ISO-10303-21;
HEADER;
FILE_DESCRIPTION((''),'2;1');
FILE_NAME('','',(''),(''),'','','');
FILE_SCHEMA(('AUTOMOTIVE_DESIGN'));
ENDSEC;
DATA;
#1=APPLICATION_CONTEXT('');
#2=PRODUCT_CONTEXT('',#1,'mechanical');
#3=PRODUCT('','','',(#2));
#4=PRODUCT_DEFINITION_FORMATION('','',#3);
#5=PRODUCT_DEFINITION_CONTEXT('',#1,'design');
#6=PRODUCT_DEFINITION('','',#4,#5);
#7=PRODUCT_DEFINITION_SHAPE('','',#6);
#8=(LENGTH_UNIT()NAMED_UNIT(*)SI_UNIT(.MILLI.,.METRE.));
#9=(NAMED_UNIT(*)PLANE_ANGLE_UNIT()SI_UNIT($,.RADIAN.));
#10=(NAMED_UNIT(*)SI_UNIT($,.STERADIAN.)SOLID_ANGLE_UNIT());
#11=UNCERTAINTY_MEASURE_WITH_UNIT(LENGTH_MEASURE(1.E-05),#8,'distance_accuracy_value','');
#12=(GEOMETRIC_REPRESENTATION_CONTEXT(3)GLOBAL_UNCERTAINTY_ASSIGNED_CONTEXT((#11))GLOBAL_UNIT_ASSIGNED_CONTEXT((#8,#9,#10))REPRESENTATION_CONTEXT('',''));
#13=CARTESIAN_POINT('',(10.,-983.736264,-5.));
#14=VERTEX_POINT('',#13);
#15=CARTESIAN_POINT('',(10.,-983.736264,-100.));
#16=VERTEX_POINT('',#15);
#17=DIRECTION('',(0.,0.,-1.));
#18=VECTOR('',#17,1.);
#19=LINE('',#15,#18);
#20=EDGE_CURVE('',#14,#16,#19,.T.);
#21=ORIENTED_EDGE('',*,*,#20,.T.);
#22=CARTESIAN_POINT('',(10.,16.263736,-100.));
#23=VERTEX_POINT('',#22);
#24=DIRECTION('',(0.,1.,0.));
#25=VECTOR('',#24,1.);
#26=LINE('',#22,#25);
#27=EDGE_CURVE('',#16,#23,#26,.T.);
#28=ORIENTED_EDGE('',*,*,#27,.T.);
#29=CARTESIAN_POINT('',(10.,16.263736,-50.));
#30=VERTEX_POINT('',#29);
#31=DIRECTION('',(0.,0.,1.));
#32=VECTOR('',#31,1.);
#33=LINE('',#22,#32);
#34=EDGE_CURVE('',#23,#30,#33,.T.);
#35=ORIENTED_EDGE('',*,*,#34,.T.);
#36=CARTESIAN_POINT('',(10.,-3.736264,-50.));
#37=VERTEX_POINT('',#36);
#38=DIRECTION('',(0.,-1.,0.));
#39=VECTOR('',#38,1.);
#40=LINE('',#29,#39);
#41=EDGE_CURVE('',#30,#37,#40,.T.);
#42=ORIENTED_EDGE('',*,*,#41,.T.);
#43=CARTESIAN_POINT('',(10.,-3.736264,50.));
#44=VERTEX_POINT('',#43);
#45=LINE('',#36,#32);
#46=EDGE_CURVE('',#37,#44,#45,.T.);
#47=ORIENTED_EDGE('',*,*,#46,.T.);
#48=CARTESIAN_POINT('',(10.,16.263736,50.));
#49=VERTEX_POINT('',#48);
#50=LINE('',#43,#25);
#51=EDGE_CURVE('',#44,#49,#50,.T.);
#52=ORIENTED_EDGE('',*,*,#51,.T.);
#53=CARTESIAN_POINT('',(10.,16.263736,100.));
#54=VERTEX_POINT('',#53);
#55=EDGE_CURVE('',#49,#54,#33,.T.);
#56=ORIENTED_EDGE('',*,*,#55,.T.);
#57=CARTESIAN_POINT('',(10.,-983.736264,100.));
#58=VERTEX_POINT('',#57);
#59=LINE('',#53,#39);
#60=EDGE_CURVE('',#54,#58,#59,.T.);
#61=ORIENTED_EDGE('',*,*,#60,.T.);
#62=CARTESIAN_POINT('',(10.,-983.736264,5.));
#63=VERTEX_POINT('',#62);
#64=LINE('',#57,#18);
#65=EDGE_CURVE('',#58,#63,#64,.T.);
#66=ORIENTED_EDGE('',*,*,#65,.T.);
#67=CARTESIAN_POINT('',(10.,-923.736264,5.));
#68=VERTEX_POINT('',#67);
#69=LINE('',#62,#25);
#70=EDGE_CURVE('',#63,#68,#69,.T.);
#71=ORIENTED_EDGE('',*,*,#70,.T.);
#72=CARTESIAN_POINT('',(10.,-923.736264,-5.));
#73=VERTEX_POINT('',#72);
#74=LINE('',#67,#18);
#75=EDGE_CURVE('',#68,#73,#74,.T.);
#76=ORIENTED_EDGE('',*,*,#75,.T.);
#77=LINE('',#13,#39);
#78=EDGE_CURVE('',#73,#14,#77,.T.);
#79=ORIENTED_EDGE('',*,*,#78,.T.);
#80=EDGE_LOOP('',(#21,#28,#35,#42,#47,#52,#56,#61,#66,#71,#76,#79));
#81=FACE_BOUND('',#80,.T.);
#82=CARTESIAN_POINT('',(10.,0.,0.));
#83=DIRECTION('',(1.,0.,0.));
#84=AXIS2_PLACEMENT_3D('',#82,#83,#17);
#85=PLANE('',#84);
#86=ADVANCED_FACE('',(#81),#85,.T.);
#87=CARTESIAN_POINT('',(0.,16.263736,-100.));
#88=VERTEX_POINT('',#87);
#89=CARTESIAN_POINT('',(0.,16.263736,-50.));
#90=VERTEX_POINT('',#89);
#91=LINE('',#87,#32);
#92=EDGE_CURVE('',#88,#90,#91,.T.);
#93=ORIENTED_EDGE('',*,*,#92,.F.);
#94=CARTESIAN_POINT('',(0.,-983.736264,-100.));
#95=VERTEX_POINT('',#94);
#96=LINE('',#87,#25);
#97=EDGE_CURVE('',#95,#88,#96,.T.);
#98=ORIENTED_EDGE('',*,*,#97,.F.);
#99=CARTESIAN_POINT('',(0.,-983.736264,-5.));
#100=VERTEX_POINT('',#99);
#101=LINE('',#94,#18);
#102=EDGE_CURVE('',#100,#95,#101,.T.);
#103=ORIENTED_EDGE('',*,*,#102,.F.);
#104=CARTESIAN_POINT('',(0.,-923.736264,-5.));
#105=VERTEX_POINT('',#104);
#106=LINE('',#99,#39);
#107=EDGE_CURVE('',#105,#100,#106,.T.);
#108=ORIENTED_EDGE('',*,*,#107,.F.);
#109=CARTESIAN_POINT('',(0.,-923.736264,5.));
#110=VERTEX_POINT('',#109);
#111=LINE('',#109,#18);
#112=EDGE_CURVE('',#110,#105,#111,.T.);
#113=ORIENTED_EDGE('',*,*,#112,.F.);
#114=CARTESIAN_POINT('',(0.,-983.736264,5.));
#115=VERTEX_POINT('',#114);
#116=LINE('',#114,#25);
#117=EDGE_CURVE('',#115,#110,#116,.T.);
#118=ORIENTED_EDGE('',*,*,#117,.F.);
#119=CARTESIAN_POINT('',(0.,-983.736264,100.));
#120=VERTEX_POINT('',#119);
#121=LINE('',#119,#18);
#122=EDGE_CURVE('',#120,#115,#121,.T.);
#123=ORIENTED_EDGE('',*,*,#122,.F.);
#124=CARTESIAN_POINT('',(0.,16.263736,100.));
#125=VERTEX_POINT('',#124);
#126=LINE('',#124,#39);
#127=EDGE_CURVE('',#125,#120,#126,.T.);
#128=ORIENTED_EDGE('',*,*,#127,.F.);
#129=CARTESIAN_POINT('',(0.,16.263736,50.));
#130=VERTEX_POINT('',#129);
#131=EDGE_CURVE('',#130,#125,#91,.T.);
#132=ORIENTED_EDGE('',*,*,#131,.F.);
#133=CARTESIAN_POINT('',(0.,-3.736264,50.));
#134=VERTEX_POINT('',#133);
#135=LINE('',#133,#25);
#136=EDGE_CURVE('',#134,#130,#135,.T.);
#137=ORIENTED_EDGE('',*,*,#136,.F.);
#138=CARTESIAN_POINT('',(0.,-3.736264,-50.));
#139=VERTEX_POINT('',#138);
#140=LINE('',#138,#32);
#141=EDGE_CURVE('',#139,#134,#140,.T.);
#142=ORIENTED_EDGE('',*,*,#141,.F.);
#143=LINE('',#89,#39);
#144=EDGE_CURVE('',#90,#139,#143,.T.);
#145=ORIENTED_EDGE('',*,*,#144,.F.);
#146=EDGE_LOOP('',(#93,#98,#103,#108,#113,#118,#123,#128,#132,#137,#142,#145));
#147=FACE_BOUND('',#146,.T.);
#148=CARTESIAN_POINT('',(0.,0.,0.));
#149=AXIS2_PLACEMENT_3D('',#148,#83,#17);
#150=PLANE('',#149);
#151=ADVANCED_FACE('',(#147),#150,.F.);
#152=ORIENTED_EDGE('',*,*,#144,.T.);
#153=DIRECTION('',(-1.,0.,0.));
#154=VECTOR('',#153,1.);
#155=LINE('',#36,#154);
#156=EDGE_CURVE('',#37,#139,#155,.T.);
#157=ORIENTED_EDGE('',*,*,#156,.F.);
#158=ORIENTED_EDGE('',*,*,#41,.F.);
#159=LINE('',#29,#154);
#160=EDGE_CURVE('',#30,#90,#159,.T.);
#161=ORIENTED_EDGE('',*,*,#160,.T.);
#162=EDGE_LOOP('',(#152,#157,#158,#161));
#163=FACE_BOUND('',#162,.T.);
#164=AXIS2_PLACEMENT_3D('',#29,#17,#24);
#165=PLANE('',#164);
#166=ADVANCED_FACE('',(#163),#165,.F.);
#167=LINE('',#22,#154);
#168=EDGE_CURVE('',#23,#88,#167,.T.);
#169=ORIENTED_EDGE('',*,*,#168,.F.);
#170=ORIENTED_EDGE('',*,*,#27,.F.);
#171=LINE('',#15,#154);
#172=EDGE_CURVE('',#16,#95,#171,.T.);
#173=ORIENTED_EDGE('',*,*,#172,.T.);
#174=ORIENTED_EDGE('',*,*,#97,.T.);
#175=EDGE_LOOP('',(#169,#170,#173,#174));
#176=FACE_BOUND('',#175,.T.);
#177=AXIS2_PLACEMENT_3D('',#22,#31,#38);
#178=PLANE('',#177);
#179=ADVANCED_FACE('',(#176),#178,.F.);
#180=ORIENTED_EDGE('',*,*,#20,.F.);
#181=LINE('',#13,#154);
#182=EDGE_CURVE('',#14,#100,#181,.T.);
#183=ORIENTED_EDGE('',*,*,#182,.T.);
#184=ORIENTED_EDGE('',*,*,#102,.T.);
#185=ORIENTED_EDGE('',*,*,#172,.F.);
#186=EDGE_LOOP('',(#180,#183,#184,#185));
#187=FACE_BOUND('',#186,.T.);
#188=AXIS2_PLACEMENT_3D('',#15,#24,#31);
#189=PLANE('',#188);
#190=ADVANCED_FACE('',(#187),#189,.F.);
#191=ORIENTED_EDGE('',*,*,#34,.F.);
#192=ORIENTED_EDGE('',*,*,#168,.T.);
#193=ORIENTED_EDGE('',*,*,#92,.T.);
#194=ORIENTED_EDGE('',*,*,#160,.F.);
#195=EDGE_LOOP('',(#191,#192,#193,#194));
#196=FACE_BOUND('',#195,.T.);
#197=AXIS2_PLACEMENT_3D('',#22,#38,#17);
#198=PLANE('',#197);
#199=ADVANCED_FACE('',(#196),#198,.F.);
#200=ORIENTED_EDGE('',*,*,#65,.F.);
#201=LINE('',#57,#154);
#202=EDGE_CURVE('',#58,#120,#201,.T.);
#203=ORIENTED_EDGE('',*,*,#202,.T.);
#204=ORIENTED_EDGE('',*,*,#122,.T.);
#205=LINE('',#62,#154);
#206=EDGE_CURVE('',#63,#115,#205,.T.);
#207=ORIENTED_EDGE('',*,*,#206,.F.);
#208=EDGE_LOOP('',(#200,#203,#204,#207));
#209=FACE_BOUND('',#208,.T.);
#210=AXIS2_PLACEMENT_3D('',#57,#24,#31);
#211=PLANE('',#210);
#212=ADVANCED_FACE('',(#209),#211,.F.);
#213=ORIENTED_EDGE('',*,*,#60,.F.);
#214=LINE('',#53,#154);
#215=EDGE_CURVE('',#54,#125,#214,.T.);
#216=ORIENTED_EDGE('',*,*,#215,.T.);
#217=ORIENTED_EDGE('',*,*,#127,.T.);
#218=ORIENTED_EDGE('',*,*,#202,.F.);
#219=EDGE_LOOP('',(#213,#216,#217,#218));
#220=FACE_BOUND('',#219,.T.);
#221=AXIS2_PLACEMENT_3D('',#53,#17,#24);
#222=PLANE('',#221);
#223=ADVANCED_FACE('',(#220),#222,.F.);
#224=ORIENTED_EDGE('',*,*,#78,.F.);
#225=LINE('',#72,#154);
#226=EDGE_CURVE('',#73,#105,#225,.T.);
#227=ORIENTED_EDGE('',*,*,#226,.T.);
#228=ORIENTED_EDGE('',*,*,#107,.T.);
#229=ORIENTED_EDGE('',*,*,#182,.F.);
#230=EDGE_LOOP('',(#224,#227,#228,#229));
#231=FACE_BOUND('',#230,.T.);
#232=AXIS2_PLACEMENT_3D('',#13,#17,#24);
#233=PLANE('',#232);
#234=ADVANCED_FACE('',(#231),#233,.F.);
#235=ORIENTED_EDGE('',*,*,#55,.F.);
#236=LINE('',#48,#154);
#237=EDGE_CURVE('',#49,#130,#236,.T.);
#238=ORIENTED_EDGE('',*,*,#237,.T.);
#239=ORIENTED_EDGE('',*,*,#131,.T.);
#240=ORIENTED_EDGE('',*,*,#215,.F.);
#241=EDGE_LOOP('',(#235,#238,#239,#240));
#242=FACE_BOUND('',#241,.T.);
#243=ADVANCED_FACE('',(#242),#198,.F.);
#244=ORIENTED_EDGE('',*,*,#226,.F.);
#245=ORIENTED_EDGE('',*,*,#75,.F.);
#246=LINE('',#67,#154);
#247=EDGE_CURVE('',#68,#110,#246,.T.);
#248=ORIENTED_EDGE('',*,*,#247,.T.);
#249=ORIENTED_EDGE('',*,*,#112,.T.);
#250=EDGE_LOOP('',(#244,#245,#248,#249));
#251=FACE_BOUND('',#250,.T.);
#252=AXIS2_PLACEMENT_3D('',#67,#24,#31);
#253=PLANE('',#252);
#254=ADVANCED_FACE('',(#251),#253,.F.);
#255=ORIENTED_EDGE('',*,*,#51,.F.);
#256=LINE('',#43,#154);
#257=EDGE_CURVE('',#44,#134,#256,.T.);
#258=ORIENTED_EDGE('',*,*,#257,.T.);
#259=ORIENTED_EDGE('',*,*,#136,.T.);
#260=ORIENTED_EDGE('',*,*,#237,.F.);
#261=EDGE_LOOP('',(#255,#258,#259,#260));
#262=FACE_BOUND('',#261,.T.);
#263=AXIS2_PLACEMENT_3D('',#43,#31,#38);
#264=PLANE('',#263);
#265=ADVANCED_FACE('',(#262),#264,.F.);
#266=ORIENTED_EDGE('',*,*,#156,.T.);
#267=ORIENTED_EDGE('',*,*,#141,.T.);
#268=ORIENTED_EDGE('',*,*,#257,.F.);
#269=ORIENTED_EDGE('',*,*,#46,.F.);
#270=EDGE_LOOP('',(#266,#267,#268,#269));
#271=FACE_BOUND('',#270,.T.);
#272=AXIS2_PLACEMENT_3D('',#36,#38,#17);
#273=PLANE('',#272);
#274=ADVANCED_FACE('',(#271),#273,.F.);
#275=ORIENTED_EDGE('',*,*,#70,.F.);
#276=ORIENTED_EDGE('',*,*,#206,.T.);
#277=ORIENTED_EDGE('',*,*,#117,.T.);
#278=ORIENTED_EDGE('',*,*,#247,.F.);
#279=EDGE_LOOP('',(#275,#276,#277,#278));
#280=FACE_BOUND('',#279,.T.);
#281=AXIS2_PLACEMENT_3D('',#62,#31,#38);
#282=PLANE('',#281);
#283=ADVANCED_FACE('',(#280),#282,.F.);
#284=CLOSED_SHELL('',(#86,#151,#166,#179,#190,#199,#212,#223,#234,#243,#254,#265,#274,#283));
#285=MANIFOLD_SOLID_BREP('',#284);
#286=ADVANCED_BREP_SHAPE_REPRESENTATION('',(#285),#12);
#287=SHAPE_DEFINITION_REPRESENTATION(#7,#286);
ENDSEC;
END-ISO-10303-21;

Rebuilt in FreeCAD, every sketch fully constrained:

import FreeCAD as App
import Part
import Sketcher
from FreeCAD import Vector


def add_polygon(sketch, points):
    """Adds a closed chain of lines whose ends are joined by coincident constraints."""
    first, n = sketch.GeometryCount, len(points)
    for a, b in zip(points, points[1:] + points[:1]):
        sketch.addGeometry(Part.LineSegment(App.Vector(*a, 0), App.Vector(*b, 0)), False)
    for i in range(n):
        sketch.addConstraint(Sketcher.Constraint("Coincident", first + i, 2, first + (i + 1) % n, 1))

doc = App.newDocument("Part")
body = doc.addObject("PartDesign::Body", "Body")

# Sketch on YZ plane
sketch1 = body.newObject("Sketcher::SketchObject", "Sketch")
sketch1.AttachmentSupport = (doc.getObject("YZ_Plane"), [""])
sketch1.MapMode = "FlatFace"
add_polygon(sketch1, [(16, -100), (16, 100), (-984, 100), (-984, 5), (-924, 5), (-924, -5), (-984, -5), (-984, -100)])  # lines 0-7
sketch1.addConstraint([
    Sketcher.Constraint("Vertical", 0),
    Sketcher.Constraint("Horizontal", 1),
    Sketcher.Constraint("Vertical", 2),
    Sketcher.Constraint("Horizontal", 3),
    Sketcher.Constraint("Vertical", 4),
    Sketcher.Constraint("Horizontal", 5),
    Sketcher.Constraint("Vertical", 6),
    Sketcher.Constraint("Horizontal", 7),
    Sketcher.Constraint("Symmetric", 2, 2, 5, 2, -1),
    Sketcher.Constraint("Equal", 2, 6),
    Sketcher.Constraint("DistanceX", 1, 2, 1, 1, 1000.0),
    Sketcher.Constraint("DistanceX", 3, 1, 3, 2, 60.0),
    Sketcher.Constraint("DistanceY", 0, 1, 0, 2, 200.0),
    Sketcher.Constraint("DistanceY", 2, 2, 2, 1, 95.0),
    Sketcher.Constraint("DistanceX", -1, 1, 0, 2, 16.263736),
])
pad1 = body.newObject("PartDesign::Pad", "Pad")
pad1.Profile = sketch1
pad1.Length = 10

# Sketch on YZ plane
sketch2 = body.newObject("Sketcher::SketchObject", "Sketch001")
sketch2.AttachmentSupport = (doc.getObject("YZ_Plane"), [""])
sketch2.MapMode = "FlatFace"
add_polygon(sketch2, [(16, -50), (-4, -50), (-4, 50), (16, 50)])  # lines 0-3
sketch2.addConstraint([
    Sketcher.Constraint("Horizontal", 0),
    Sketcher.Constraint("Vertical", 1),
    Sketcher.Constraint("Horizontal", 2),
    Sketcher.Constraint("Vertical", 3),
    Sketcher.Constraint("DistanceX", 0, 2, 0, 1, 20.0),
    Sketcher.Constraint("DistanceY", 1, 1, 1, 2, 100.0),
    Sketcher.Constraint("DistanceY", 0, 2, -1, 1, 50.0),
    Sketcher.Constraint("DistanceX", 0, 2, -1, 1, 3.736264),
])
pocket1 = body.newObject("PartDesign::Pocket", "Pocket")
pocket1.Profile = sketch2
pocket1.Length = 10
pocket1.Reversed = True

doc.recompute()
